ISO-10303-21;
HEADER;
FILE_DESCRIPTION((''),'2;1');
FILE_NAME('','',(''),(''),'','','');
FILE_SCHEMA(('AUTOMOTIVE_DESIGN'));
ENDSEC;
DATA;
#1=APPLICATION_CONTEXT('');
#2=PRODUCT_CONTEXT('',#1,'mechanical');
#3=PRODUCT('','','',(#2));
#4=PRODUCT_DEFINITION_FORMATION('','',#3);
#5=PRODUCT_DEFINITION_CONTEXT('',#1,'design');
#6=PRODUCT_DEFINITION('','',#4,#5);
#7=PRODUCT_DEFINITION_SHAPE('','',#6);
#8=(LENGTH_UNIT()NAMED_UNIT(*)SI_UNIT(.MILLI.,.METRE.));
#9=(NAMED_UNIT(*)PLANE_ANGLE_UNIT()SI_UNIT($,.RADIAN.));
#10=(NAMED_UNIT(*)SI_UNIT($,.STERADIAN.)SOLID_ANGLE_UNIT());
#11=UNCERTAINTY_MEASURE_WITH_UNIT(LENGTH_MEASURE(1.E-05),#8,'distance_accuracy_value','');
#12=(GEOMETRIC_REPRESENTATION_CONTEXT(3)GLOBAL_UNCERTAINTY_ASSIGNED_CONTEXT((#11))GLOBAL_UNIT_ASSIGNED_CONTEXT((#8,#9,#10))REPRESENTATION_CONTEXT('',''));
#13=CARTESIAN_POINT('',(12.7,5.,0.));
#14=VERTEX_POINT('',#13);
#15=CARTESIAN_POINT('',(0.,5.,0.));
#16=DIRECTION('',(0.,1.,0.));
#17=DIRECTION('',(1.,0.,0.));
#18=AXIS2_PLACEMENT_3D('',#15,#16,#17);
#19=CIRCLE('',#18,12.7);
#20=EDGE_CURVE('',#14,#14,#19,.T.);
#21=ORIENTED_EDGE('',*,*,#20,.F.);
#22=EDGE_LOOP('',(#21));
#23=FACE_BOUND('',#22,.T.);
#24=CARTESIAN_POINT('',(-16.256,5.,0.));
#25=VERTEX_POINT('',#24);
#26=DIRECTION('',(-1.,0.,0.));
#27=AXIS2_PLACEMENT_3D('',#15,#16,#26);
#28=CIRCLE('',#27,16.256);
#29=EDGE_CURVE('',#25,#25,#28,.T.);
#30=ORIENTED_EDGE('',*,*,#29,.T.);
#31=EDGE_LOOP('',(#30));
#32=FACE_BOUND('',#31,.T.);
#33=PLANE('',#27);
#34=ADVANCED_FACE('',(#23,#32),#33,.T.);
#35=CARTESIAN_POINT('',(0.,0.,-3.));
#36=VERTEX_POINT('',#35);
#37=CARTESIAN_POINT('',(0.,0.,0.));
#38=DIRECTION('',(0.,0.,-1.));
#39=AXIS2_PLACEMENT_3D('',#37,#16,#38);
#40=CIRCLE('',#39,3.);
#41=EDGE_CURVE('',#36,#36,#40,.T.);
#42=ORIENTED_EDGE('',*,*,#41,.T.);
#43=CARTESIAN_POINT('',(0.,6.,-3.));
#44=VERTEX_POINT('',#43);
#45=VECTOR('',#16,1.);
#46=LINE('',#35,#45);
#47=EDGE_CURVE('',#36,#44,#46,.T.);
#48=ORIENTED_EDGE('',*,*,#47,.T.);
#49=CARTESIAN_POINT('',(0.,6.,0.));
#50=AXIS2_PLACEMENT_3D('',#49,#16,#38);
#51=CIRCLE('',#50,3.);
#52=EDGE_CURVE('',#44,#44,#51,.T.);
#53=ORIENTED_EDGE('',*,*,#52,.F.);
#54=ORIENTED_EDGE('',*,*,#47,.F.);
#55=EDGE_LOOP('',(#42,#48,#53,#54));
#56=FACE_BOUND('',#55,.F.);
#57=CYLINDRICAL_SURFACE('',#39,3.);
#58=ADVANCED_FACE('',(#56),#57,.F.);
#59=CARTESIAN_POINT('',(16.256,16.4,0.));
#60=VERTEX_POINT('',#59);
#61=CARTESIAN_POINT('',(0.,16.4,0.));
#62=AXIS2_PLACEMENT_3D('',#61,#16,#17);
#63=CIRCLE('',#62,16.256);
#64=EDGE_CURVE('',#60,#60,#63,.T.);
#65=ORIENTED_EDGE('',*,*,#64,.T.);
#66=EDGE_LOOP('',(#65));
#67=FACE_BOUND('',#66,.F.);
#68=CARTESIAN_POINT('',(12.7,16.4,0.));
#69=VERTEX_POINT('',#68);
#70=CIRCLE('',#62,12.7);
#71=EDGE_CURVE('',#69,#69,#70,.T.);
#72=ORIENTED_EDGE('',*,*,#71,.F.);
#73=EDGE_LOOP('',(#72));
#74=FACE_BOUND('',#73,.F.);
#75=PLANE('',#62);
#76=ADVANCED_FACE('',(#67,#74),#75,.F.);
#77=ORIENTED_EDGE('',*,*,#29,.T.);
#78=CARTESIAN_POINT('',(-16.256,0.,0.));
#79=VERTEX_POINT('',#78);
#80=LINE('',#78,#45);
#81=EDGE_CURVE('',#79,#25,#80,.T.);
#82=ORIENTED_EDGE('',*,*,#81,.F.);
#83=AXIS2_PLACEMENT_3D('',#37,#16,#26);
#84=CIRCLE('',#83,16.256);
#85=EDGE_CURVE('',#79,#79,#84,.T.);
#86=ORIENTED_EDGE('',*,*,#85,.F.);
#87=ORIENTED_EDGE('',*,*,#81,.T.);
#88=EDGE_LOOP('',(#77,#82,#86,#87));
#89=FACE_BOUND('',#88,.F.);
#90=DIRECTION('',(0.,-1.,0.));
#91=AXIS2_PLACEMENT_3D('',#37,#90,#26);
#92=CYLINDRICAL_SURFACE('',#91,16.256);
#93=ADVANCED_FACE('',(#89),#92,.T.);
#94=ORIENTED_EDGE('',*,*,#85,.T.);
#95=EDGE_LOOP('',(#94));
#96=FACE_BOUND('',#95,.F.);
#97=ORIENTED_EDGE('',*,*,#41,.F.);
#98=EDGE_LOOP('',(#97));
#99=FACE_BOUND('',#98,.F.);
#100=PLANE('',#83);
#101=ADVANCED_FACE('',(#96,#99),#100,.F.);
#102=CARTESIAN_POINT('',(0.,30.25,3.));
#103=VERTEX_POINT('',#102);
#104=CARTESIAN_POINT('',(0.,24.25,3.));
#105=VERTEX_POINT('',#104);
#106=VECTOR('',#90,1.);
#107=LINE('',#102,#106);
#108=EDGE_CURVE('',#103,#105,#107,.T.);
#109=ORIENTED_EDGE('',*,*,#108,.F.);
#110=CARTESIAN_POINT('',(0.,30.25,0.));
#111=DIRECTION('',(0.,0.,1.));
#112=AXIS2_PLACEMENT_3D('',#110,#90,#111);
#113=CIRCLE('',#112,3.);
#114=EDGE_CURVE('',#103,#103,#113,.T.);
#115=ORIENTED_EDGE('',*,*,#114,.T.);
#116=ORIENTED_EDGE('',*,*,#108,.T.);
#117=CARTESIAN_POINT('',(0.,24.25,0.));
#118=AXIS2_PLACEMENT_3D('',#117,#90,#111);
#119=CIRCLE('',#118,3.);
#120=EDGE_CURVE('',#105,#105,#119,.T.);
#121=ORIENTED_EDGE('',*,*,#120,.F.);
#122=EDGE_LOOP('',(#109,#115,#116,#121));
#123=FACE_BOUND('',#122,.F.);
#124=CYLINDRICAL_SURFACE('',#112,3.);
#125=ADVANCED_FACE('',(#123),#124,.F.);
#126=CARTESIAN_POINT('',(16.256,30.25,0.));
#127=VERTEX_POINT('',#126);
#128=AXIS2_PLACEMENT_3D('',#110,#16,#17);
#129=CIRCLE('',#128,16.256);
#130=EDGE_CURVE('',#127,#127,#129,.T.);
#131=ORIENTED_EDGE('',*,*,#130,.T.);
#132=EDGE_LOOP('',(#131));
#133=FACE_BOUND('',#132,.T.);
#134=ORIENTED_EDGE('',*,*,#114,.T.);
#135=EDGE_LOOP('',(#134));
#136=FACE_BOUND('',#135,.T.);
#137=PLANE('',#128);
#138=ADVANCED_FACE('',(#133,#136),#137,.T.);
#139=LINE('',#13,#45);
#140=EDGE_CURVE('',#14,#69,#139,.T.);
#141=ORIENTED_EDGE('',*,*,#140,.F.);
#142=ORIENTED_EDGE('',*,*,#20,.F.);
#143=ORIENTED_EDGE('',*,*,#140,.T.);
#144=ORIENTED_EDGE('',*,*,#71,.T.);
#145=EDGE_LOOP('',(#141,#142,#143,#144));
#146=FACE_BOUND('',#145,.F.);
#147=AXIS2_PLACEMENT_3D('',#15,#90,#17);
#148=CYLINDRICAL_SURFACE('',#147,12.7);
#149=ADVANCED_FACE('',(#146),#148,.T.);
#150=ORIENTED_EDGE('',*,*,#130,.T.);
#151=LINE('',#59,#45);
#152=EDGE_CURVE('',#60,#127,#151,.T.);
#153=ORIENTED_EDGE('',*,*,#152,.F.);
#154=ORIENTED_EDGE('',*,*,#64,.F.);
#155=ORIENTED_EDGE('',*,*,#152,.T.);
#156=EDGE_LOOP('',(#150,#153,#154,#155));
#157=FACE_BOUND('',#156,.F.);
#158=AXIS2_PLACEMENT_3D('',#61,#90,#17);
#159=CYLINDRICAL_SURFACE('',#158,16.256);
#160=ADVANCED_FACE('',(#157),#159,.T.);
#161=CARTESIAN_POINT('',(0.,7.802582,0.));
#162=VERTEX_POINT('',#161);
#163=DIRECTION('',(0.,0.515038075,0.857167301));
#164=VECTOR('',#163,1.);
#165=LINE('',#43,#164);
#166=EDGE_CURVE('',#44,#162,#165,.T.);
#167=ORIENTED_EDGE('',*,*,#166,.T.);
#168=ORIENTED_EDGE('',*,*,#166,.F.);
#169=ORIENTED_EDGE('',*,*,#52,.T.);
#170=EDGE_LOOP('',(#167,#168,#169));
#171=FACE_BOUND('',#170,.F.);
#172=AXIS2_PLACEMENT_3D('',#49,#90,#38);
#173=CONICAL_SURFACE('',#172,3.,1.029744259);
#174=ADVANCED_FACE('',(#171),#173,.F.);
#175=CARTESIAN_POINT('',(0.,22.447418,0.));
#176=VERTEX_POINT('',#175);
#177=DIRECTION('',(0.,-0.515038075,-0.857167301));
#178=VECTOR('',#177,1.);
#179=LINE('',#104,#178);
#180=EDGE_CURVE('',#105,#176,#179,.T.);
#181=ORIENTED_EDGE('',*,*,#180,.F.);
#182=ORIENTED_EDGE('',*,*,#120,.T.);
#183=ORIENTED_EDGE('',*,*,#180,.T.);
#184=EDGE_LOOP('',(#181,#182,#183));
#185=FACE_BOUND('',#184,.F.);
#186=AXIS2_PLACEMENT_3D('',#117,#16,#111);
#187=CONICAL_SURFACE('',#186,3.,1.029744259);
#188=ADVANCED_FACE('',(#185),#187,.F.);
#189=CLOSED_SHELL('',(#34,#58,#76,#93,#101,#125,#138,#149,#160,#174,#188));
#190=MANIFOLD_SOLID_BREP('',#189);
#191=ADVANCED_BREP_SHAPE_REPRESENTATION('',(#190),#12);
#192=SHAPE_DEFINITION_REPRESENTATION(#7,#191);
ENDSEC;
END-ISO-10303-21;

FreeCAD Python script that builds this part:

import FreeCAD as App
import Part
import Sketcher
from FreeCAD import Vector

doc = App.newDocument("Part")
body = doc.addObject("PartDesign::Body", "Body")

sketch1 = body.newObject("Sketcher::SketchObject", "Sketch")
sketch1.AttachmentSupport = (doc.getObject("XZ_Plane"), [""])
sketch1.MapMode = "FlatFace"
sketch1.addGeometry(Part.Circle(Vector(0, 0, 0), Vector(0, 0, 1), 16), False)
sketch1.addConstraint(Sketcher.Constraint("Coincident", 0, 3, -1, 1))
sketch1.addConstraint(Sketcher.Constraint("Diameter", 0, 32.512))
pad1 = body.newObject("PartDesign::Pad", "Pad")
pad1.Profile = sketch1
pad1.Length = 5
pad1.Reversed = True

sketch2 = body.newObject("Sketcher::SketchObject", "Sketch001")
sketch2.AttachmentSupport = (doc.getObject("XZ_Plane"), [""])
sketch2.MapMode = "FlatFace"
sketch2.AttachmentOffset = App.Placement(Vector(0, 0, -5), App.Rotation())
sketch2.addGeometry(Part.Circle(Vector(0, 0, 0), Vector(0, 0, 1), 13), False)
sketch2.addConstraint(Sketcher.Constraint("Coincident", 0, 3, -1, 1))
sketch2.addConstraint(Sketcher.Constraint("Diameter", 0, 25.4))
pad2 = body.newObject("PartDesign::Pad", "Pad001")
pad2.Profile = sketch2
pad2.Length = 11.4
pad2.Reversed = True

sketch3 = body.newObject("Sketcher::SketchObject", "Sketch002")
sketch3.AttachmentSupport = (doc.getObject("XZ_Plane"), [""])
sketch3.MapMode = "FlatFace"
sketch3.AttachmentOffset = App.Placement(Vector(0, 0, -16.4), App.Rotation())
sketch3.addGeometry(Part.Circle(Vector(0, 0, 0), Vector(0, 0, 1), 16), False)
sketch3.addConstraint(Sketcher.Constraint("Coincident", 0, 3, -1, 1))
sketch3.addConstraint(Sketcher.Constraint("Diameter", 0, 32.512))
pad3 = body.newObject("PartDesign::Pad", "Pad002")
pad3.Profile = sketch3
pad3.Length = 13.85
pad3.Reversed = True

sketch4 = body.newObject("Sketcher::SketchObject", "Sketch003")
sketch4.AttachmentSupport = (doc.getObject("XZ_Plane"), [""])
sketch4.MapMode = "FlatFace"
sketch4.AttachmentOffset = App.Placement(Vector(0, 0, -30.25), App.Rotation())
sketch4.addGeometry(Part.Circle(Vector(0, 0, 0), Vector(0, 0, 1), 3), False)
sketch4.addConstraint(Sketcher.Constraint("Coincident", 0, 3, -1, 1))
sketch4.addConstraint(Sketcher.Constraint("Diameter", 0, 6.0))
doc.recompute()
hole = body.newObject("PartDesign::Hole", "Hole")
hole.Profile = sketch4
hole.ThreadType = "None"
hole.Diameter = 6
hole.DepthType = "Dimension"
hole.Depth = 6
hole.DrillPoint = "Angled"
hole.DrillPointAngle = 118
hole.Reversed = True

sketch5 = body.newObject("Sketcher::SketchObject", "Sketch004")
sketch5.AttachmentSupport = (doc.getObject("XZ_Plane"), [""])
sketch5.MapMode = "FlatFace"
sketch5.addGeometry(Part.Circle(Vector(0, 0, 0), Vector(0, 0, 1), 3), False)
sketch5.addConstraint(Sketcher.Constraint("Coincident", 0, 3, -1, 1))
sketch5.addConstraint(Sketcher.Constraint("Diameter", 0, 6.0))
doc.recompute()
hole2 = body.newObject("PartDesign::Hole", "Hole001")
hole2.Profile = sketch5
hole2.ThreadType = "None"
hole2.Diameter = 6
hole2.DepthType = "Dimension"
hole2.Depth = 6
hole2.DrillPoint = "Angled"
hole2.DrillPointAngle = 118

doc.recompute()
